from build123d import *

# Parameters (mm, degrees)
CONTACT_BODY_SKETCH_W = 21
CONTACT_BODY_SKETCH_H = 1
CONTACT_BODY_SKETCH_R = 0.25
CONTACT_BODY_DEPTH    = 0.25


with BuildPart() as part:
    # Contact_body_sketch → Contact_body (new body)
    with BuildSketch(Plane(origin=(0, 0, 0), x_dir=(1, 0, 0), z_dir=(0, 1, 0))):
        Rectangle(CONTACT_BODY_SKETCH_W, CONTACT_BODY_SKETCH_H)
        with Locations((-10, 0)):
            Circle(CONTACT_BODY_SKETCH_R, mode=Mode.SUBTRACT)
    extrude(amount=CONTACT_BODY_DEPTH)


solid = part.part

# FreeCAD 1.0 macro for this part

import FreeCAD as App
import Part
import Sketcher


def add_polygon(sketch, points):
    """Adds a closed chain of lines whose ends are joined by coincident constraints."""
    first, n = sketch.GeometryCount, len(points)
    for a, b in zip(points, points[1:] + points[:1]):
        sketch.addGeometry(Part.LineSegment(App.Vector(*a, 0), App.Vector(*b, 0)), False)
    for i in range(n):
        sketch.addConstraint(Sketcher.Constraint("Coincident", first + i, 2, first + (i + 1) % n, 1))

doc = App.newDocument("Part")
params = doc.addObject("Spreadsheet::Sheet", "Params")
for row, (alias, value) in enumerate([
    ("sketch1_diameter", "0.5 mm"),
    ("sketch1_width", "21 mm"),
    ("sketch1_height", "1 mm"),
    ("pad1_length", "0.25 mm"),
], start=1):
    params.set(f"A{row}", alias)
    params.set(f"B{row}", "=" + value)
    params.setAlias(f"B{row}", alias)

body = doc.addObject("PartDesign::Body", "Body")

# Sketch on XZ plane
sketch1 = body.newObject("Sketcher::SketchObject", "Sketch")
sketch1.AttachmentSupport = (doc.getObject("XZ_Plane"), [""])
sketch1.MapMode = "FlatFace"
add_polygon(sketch1, [(-10.5, -0.5), (-10.5, 0.5), (10.5, 0.5), (10.5, -0.5)])  # lines 0-3
sketch1.addGeometry(Part.Circle(App.Vector(-10, 0, 0), App.Vector(0, 0, 1), 0.25), False)  # 4
sketch1.addConstraint([
    Sketcher.Constraint("Vertical", 0),
    Sketcher.Constraint("Horizontal", 1),
    Sketcher.Constraint("Vertical", 2),
    Sketcher.Constraint("Horizontal", 3),
    Sketcher.Constraint("Symmetric", 0, 2, 2, 2, -1, 1),
    Sketcher.Constraint("PointOnObject", 4, 3, -1),
    Sketcher.Constraint("Diameter", 4, 0.5),
    Sketcher.Constraint("DistanceX", 1, 1, 1, 2, 21.0),
    Sketcher.Constraint("DistanceY", 0, 1, 0, 2, 1.0),
    Sketcher.Constraint("DistanceX", 4, 3, -1, 1, 10.0),
])
sketch1.setExpression("Constraints[10]", "Params.sketch1_diameter")
sketch1.setExpression("Constraints[11]", "Params.sketch1_width")
sketch1.setExpression("Constraints[12]", "Params.sketch1_height")
pad1 = body.newObject("PartDesign::Pad", "Pad")
pad1.Profile = sketch1
pad1.setExpression("Length", "Params.pad1_length")
pad1.Reversed = True

doc.recompute()
